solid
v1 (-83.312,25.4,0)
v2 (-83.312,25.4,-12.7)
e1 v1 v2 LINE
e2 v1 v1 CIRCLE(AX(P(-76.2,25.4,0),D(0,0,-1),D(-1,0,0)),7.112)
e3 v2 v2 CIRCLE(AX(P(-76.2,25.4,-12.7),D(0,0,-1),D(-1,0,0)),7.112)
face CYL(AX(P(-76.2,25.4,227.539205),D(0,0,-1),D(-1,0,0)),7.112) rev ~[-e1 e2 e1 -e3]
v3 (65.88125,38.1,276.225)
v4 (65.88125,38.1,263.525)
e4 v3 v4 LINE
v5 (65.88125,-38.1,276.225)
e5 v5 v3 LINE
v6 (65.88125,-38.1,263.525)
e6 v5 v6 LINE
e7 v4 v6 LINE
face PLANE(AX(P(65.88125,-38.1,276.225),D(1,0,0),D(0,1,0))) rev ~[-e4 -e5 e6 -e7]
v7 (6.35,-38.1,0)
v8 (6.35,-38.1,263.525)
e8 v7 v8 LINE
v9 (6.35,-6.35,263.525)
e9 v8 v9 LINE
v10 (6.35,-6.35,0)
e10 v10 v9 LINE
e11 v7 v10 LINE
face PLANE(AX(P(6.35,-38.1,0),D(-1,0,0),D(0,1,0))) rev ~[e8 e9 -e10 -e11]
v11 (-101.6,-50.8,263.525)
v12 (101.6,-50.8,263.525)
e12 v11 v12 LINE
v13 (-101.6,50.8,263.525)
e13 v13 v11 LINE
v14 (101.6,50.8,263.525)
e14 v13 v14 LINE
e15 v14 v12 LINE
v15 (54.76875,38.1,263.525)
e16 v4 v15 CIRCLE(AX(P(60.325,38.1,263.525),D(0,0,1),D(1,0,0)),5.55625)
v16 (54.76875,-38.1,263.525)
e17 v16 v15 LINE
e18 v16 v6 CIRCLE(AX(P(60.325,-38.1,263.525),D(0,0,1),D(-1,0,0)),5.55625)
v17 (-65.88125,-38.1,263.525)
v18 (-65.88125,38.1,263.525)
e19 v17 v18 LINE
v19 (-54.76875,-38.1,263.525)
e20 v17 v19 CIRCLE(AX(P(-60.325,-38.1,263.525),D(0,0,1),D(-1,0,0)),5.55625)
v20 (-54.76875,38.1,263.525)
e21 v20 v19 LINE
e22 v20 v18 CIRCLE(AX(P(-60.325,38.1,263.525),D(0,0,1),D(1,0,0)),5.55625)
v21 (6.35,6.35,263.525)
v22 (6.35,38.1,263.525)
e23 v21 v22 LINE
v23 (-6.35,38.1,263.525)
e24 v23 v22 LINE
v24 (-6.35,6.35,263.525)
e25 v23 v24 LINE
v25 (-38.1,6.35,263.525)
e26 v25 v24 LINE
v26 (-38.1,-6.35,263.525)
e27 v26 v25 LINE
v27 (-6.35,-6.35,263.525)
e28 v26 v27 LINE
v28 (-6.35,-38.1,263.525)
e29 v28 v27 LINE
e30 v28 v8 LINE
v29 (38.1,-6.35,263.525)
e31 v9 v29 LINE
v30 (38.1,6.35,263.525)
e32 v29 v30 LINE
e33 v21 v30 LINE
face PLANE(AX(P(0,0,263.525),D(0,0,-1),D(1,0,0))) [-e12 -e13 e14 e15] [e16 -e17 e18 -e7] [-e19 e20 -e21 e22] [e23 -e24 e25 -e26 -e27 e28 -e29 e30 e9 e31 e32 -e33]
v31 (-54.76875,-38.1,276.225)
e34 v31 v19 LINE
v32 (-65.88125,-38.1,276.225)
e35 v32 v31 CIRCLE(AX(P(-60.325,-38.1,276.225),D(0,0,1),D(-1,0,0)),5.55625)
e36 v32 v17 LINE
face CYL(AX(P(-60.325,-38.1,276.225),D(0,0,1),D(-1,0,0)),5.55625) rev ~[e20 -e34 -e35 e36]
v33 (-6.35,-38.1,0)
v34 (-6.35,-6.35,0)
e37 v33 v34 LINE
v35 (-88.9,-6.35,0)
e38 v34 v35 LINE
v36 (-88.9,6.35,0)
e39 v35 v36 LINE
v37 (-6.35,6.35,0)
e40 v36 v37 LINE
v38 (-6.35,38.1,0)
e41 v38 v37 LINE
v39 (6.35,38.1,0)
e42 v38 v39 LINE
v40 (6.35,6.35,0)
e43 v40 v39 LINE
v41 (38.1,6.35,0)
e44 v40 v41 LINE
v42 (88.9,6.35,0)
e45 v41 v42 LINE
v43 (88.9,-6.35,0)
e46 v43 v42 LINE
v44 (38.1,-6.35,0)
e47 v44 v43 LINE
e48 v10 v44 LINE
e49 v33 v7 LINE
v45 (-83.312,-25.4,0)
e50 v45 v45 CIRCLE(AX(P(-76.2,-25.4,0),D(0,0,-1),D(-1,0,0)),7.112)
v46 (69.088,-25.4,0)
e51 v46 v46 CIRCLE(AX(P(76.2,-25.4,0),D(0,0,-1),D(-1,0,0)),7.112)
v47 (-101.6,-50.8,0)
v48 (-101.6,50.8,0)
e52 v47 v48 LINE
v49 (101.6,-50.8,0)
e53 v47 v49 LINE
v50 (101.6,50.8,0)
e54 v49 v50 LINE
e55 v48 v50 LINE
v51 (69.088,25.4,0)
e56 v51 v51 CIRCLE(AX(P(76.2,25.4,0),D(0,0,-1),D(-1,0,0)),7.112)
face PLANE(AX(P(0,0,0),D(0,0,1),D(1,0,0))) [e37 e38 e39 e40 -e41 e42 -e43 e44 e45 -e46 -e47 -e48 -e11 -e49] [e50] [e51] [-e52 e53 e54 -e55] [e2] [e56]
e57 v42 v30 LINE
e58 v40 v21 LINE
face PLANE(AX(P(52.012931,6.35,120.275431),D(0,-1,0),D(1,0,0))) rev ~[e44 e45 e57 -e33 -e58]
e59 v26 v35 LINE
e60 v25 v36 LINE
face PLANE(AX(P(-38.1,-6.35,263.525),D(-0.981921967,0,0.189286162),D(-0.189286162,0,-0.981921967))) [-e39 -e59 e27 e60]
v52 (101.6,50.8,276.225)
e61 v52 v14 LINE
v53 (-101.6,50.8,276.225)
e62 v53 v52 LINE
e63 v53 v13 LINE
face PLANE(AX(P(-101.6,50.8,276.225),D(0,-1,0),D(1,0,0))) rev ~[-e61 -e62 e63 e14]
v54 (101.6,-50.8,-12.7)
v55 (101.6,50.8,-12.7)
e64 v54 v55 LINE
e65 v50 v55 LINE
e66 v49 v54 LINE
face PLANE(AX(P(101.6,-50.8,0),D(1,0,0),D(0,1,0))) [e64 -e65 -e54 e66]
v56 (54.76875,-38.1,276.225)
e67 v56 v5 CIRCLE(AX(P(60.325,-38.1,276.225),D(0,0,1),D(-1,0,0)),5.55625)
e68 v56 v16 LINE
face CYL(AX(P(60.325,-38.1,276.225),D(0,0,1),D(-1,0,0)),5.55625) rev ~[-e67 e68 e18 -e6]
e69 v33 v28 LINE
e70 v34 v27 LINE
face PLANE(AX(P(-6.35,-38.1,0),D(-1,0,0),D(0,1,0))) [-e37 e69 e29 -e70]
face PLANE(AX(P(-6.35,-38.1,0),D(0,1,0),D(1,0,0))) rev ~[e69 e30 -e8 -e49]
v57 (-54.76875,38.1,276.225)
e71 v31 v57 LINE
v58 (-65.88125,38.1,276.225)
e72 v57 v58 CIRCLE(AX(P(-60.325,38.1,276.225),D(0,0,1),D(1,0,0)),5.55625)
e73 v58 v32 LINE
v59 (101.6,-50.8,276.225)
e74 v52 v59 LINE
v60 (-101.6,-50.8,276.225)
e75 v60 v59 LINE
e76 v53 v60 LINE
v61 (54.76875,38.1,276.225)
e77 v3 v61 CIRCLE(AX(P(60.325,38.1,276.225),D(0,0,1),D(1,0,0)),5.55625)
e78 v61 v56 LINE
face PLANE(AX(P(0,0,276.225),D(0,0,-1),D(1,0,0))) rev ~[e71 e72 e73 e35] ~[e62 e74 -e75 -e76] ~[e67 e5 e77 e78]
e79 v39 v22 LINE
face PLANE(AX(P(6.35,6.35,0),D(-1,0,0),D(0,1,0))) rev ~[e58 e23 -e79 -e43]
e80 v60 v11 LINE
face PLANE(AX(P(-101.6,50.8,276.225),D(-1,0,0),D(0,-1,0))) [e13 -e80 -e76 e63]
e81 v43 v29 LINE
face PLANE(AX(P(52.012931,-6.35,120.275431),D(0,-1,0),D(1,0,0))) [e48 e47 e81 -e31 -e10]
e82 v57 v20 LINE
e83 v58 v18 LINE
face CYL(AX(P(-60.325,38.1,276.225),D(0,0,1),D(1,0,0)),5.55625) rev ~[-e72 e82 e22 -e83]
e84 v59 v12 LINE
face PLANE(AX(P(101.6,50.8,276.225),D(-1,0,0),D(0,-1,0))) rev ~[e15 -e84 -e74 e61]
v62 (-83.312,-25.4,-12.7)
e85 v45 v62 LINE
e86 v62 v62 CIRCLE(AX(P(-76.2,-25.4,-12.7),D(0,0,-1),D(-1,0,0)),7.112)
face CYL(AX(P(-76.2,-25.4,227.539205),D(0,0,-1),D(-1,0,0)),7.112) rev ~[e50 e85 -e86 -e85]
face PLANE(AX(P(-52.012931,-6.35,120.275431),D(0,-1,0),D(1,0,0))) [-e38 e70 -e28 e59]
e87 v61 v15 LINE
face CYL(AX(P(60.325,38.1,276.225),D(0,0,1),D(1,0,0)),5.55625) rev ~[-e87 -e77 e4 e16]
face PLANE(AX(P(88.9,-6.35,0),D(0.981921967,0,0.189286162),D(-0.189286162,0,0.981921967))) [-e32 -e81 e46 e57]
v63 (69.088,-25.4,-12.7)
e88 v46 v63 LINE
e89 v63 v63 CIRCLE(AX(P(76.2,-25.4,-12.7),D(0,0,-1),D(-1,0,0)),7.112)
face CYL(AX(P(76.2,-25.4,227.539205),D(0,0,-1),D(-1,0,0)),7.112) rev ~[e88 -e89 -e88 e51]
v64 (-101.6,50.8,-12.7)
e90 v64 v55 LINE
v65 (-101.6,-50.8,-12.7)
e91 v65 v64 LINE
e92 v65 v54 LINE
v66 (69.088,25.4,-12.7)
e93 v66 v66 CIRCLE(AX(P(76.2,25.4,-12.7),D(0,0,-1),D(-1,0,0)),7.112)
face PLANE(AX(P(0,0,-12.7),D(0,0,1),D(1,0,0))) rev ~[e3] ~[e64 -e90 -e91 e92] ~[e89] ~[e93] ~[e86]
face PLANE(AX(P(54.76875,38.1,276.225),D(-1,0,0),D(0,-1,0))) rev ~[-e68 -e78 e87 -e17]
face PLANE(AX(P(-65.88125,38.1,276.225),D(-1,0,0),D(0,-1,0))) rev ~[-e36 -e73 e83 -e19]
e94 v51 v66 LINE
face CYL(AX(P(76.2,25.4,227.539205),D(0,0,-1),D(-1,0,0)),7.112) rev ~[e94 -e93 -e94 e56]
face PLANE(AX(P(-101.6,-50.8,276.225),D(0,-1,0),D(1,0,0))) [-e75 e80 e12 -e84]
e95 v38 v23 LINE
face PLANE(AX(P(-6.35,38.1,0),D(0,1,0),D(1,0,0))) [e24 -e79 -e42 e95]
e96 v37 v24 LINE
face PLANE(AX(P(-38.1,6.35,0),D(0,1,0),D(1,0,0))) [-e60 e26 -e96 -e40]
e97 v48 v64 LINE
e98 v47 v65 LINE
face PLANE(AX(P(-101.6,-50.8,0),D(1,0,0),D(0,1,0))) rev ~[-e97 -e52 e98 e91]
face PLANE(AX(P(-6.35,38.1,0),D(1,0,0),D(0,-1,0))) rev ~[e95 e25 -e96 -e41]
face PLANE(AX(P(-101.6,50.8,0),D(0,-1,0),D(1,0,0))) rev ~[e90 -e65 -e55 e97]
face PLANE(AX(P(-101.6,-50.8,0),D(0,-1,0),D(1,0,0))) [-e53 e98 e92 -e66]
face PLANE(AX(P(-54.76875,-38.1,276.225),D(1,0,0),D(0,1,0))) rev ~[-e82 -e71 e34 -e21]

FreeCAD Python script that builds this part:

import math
import FreeCAD as App
import Part
import Sketcher

V = App.Vector
Q = App.Units.Quantity


def add_polygon(sketch, points):
    """Adds a closed chain of lines whose ends are joined by coincident constraints."""
    first, n = sketch.GeometryCount, len(points)
    for a, b in zip(points, points[1:] + points[:1]):
        sketch.addGeometry(Part.LineSegment(App.Vector(*a, 0), App.Vector(*b, 0)), False)
    for i in range(n):
        sketch.addConstraint(Sketcher.Constraint("Coincident", first + i, 2, first + (i + 1) % n, 1))

doc = App.newDocument("Part")
body = doc.addObject("PartDesign::Body", "Body")

sketch1 = doc.addObject("Sketcher::SketchObject", "Sketch")
body.addObject(sketch1)
sketch1.AttachmentSupport = (doc.XY_Plane, [""])
sketch1.MapMode = "FlatFace"
add_polygon(sketch1, [(-102, 51), (-102, -51), (102, -51), (102, 51)])
sketch1.addConstraint([
    Sketcher.Constraint("Vertical", 0),
    Sketcher.Constraint("Horizontal", 1),
    Sketcher.Constraint("Vertical", 2),
    Sketcher.Constraint("Horizontal", 3),
    Sketcher.Constraint("Symmetric", 0, 2, 2, 2, -1, 1),
    Sketcher.Constraint("DistanceX", 1, 1, 1, 2, Q("8 in")),
    Sketcher.Constraint("DistanceY", 0, 2, 0, 1, Q("4 in")),
])
pad1 = doc.addObject("PartDesign::Pad", "Pad")
body.addObject(pad1)
pad1.Profile = sketch1
pad1.Length = Q("0.5 in")
pad1.Reversed = True

sketch2 = doc.addObject("Sketcher::SketchObject", "Sketch001")
body.addObject(sketch2)
sketch2.AttachmentSupport = (doc.XY_Plane, [""])
sketch2.MapMode = "FlatFace"
sketch2.addGeometry([
    Part.Circle(V(-76, 25, 0), V(0, 0, 1), 7),
    Part.Circle(V(76, 25, 0), V(0, 0, 1), 7),
    Part.Circle(V(76, -25, 0), V(0, 0, 1), 7),
    Part.Circle(V(-76, -25, 0), V(0, 0, 1), 7),
], False)
sketch2.addConstraint([
    Sketcher.Constraint("Equal", 0, 1),
    Sketcher.Constraint("Equal", 1, 2),
    Sketcher.Constraint("Equal", 2, 3),
    Sketcher.Constraint("Symmetric", 0, 3, 2, 3, -1, 1),
    Sketcher.Constraint("Symmetric", 1, 3, 3, 3, -1, 1),
    Sketcher.Constraint("Symmetric", 0, 3, 1, 3, -2),
    Sketcher.Constraint("Diameter", 0, Q("0.56 in")),
    Sketcher.Constraint("DistanceX", 0, 3, -1, 1, Q("3 in")),
    Sketcher.Constraint("DistanceY", -1, 1, 0, 3, Q("1 in")),
])
doc.recompute()
hole = doc.addObject("PartDesign::Hole", "Hole")
body.addObject(hole)
hole.Profile = sketch2
hole.ThreadType = "None"
hole.Diameter = Q("0.56 in")
hole.DepthType = "ThroughAll"
body2 = doc.addObject("PartDesign::Body", "Body001")

sketch3 = doc.addObject("Sketcher::SketchObject", "Sketch002")
body2.addObject(sketch3)
sketch3.AttachmentSupport = (doc.getObject("XY_Plane001"), [""])
sketch3.MapMode = "FlatFace"
sketch3.AttachmentOffset = App.Placement(V(0, 0, 10.875 * 25.4), App.Rotation())
add_polygon(sketch3, [(-102, -51), (-102, 51), (102, 51), (102, -51)])
sketch3.addConstraint([
    Sketcher.Constraint("Vertical", 0),
    Sketcher.Constraint("Horizontal", 1),
    Sketcher.Constraint("Vertical", 2),
    Sketcher.Constraint("Horizontal", 3),
    Sketcher.Constraint("Symmetric", 0, 2, 2, 2, -1, 1),
    Sketcher.Constraint("DistanceX", 1, 1, 1, 2, Q("8 in")),
    Sketcher.Constraint("DistanceY", 0, 1, 0, 2, Q("4 in")),
])
pad2 = doc.addObject("PartDesign::Pad", "Pad001")
body2.addObject(pad2)
pad2.Profile = sketch3
pad2.Length = Q("0.5 in")
pad2.Reversed = True

sketch4 = doc.addObject("Sketcher::SketchObject", "Sketch003")
body2.addObject(sketch4)
sketch4.AttachmentSupport = (doc.getObject("XY_Plane001"), [""])
sketch4.MapMode = "FlatFace"
sketch4.AttachmentOffset = App.Placement(V(0, 0, 10.875 * 25.4), App.Rotation())
sketch4.addGeometry([
    Part.ArcOfCircle(Part.Circle(V(-60, 38, 0), V(0, 0, 1), 6), math.radians(0), math.radians(180)),
    Part.LineSegment(V(-66, 38, 0), V(-66, -38, 0)),
    Part.ArcOfCircle(Part.Circle(V(-60, -38, 0), V(0, 0, 1), 6), math.radians(180), math.radians(360)),
    Part.LineSegment(V(-55, -38, 0), V(-55, 38, 0)),
    Part.ArcOfCircle(Part.Circle(V(60, -38, 0), V(0, 0, 1), 6), math.radians(180), math.radians(360)),
    Part.LineSegment(V(66, -38, 0), V(66, 38, 0)),
    Part.ArcOfCircle(Part.Circle(V(60, 38, 0), V(0, 0, 1), 6), math.radians(0), math.radians(180)),
    Part.LineSegment(V(55, 38, 0), V(55, -38, 0)),
], False)
sketch4.addConstraint([
    Sketcher.Constraint("Tangent", 0, 2, 1, 1),
    Sketcher.Constraint("Tangent", 1, 2, 2, 1),
    Sketcher.Constraint("Tangent", 2, 2, 3, 1),
    Sketcher.Constraint("Tangent", 3, 2, 0, 1),
    Sketcher.Constraint("Tangent", 4, 2, 5, 1),
    Sketcher.Constraint("Tangent", 5, 2, 6, 1),
    Sketcher.Constraint("Tangent", 6, 2, 7, 1),
    Sketcher.Constraint("Tangent", 7, 2, 4, 1),
    Sketcher.Constraint("Vertical", 1),
    Sketcher.Constraint("Vertical", 3),
    Sketcher.Constraint("Vertical", 5),
    Sketcher.Constraint("Vertical", 7),
    Sketcher.Constraint("Equal", 2, 4),
    Sketcher.Constraint("Symmetric", 0, 3, 4, 3, -1, 1),
    Sketcher.Constraint("Horizontal", 2, 3, 4, 3),
    Sketcher.Constraint("Horizontal", 0, 3, 6, 3),
    Sketcher.Constraint("DistanceY", 1, 2, 1, 1, Q("3 in")),
    Sketcher.Constraint("Radius", 0, Q("0.21875 in")),
    Sketcher.Constraint("DistanceX", 2, 3, 4, 3, Q("4.75 in")),
])
pocket1 = doc.addObject("PartDesign::Pocket", "Pocket")
body2.addObject(pocket1)
pocket1.Profile = sketch4
pocket1.Length = Q("1 in")
body3 = doc.addObject("PartDesign::Body", "Body002")

sketch5 = doc.addObject("Sketcher::SketchObject", "Sketch004")
body3.addObject(sketch5)
sketch5.AttachmentSupport = (doc.getObject("XY_Plane002"), [""])
sketch5.MapMode = "FlatFace"
add_polygon(sketch5, [(-6, 38), (-6, 6), (-38, 6), (-38, -6), (-6, -6), (-6, -38), (6, -38), (6, -6), (38, -6), (38, 6), (6, 6), (6, 38)])
sketch5.addConstraint([
    Sketcher.Constraint("Vertical", 0),
    Sketcher.Constraint("Horizontal", 1),
    Sketcher.Constraint("Vertical", 2),
    Sketcher.Constraint("Horizontal", 3),
    Sketcher.Constraint("Vertical", 4),
    Sketcher.Constraint("Horizontal", 5),
    Sketcher.Constraint("Vertical", 6),
    Sketcher.Constraint("Horizontal", 7),
    Sketcher.Constraint("Vertical", 8),
    Sketcher.Constraint("Horizontal", 9),
    Sketcher.Constraint("Vertical", 10),
    Sketcher.Constraint("Horizontal", 11),
    Sketcher.Constraint("Symmetric", 0, 2, 6, 2, -1, 1),
    Sketcher.Constraint("Symmetric", 2, 2, 8, 2, -1, 1),
    Sketcher.Constraint("Symmetric", 4, 2, 10, 2, -1, 1),
    Sketcher.Constraint("Symmetric", 3, 2, 6, 2, -2),
    Sketcher.Constraint("Equal", 9, 0),
    Sketcher.Constraint("Equal", 11, 2),
    Sketcher.Constraint("DistanceX", 5, 1, 5, 2, Q("0.5 in")),
    Sketcher.Constraint("DistanceX", 1, 2, 1, 1, Q("1.25 in")),
])
pad3 = doc.addObject("PartDesign::Pad", "Pad002")
body3.addObject(pad3)
pad3.Profile = sketch5
pad3.Length = Q("10.375 in")
body.AllowCompound = True
doc.recompute()

boolean = doc.addObject("PartDesign::Boolean", "Boolean")
body.addObject(boolean)
boolean.Type = "Fuse"
boolean.addObjects([body2])
doc.recompute()

boolean2 = doc.addObject("PartDesign::Boolean", "Boolean001")
body.addObject(boolean2)
boolean2.Type = "Fuse"
boolean2.addObjects([body3])

sketch6 = doc.addObject("Sketcher::SketchObject", "Sketch005")
body.addObject(sketch6)
sketch6.AttachmentSupport = (doc.XZ_Plane, [""])
sketch6.MapMode = "FlatFace"
sketch6.AttachmentOffset = App.Placement(V(0, 0, 0.25 * 25.4), App.Rotation())
add_polygon(sketch6, [(89, 0), (38, 264), (38, 0)])
add_polygon(sketch6, [(-89, 0), (-38, 0), (-38, 264)])
sketch6.addConstraint([
    Sketcher.Constraint("Vertical", 1),
    Sketcher.Constraint("Horizontal", 2),
    Sketcher.Constraint("Horizontal", 3),
    Sketcher.Constraint("Vertical", 4),
    Sketcher.Constraint("Symmetric", 1, 2, 3, 2, -1, 1),
    Sketcher.Constraint("Symmetric", 2, 2, 5, 2, -2),
    Sketcher.Constraint("Horizontal", 0, 2, 4, 2),
    Sketcher.Constraint("DistanceX", 2, 1, 2, 2, Q("2 in")),
    Sketcher.Constraint("DistanceX", 3, 2, 1, 2, Q("3 in")),
    Sketcher.Constraint("DistanceY", 1, 2, 1, 1, Q("10.375 in")),
])
pad4 = doc.addObject("PartDesign::Pad", "Pad003")
body.addObject(pad4)
pad4.Profile = sketch6
pad4.Length = Q("0.5 in")
pad4.Reversed = True

doc.recompute()
